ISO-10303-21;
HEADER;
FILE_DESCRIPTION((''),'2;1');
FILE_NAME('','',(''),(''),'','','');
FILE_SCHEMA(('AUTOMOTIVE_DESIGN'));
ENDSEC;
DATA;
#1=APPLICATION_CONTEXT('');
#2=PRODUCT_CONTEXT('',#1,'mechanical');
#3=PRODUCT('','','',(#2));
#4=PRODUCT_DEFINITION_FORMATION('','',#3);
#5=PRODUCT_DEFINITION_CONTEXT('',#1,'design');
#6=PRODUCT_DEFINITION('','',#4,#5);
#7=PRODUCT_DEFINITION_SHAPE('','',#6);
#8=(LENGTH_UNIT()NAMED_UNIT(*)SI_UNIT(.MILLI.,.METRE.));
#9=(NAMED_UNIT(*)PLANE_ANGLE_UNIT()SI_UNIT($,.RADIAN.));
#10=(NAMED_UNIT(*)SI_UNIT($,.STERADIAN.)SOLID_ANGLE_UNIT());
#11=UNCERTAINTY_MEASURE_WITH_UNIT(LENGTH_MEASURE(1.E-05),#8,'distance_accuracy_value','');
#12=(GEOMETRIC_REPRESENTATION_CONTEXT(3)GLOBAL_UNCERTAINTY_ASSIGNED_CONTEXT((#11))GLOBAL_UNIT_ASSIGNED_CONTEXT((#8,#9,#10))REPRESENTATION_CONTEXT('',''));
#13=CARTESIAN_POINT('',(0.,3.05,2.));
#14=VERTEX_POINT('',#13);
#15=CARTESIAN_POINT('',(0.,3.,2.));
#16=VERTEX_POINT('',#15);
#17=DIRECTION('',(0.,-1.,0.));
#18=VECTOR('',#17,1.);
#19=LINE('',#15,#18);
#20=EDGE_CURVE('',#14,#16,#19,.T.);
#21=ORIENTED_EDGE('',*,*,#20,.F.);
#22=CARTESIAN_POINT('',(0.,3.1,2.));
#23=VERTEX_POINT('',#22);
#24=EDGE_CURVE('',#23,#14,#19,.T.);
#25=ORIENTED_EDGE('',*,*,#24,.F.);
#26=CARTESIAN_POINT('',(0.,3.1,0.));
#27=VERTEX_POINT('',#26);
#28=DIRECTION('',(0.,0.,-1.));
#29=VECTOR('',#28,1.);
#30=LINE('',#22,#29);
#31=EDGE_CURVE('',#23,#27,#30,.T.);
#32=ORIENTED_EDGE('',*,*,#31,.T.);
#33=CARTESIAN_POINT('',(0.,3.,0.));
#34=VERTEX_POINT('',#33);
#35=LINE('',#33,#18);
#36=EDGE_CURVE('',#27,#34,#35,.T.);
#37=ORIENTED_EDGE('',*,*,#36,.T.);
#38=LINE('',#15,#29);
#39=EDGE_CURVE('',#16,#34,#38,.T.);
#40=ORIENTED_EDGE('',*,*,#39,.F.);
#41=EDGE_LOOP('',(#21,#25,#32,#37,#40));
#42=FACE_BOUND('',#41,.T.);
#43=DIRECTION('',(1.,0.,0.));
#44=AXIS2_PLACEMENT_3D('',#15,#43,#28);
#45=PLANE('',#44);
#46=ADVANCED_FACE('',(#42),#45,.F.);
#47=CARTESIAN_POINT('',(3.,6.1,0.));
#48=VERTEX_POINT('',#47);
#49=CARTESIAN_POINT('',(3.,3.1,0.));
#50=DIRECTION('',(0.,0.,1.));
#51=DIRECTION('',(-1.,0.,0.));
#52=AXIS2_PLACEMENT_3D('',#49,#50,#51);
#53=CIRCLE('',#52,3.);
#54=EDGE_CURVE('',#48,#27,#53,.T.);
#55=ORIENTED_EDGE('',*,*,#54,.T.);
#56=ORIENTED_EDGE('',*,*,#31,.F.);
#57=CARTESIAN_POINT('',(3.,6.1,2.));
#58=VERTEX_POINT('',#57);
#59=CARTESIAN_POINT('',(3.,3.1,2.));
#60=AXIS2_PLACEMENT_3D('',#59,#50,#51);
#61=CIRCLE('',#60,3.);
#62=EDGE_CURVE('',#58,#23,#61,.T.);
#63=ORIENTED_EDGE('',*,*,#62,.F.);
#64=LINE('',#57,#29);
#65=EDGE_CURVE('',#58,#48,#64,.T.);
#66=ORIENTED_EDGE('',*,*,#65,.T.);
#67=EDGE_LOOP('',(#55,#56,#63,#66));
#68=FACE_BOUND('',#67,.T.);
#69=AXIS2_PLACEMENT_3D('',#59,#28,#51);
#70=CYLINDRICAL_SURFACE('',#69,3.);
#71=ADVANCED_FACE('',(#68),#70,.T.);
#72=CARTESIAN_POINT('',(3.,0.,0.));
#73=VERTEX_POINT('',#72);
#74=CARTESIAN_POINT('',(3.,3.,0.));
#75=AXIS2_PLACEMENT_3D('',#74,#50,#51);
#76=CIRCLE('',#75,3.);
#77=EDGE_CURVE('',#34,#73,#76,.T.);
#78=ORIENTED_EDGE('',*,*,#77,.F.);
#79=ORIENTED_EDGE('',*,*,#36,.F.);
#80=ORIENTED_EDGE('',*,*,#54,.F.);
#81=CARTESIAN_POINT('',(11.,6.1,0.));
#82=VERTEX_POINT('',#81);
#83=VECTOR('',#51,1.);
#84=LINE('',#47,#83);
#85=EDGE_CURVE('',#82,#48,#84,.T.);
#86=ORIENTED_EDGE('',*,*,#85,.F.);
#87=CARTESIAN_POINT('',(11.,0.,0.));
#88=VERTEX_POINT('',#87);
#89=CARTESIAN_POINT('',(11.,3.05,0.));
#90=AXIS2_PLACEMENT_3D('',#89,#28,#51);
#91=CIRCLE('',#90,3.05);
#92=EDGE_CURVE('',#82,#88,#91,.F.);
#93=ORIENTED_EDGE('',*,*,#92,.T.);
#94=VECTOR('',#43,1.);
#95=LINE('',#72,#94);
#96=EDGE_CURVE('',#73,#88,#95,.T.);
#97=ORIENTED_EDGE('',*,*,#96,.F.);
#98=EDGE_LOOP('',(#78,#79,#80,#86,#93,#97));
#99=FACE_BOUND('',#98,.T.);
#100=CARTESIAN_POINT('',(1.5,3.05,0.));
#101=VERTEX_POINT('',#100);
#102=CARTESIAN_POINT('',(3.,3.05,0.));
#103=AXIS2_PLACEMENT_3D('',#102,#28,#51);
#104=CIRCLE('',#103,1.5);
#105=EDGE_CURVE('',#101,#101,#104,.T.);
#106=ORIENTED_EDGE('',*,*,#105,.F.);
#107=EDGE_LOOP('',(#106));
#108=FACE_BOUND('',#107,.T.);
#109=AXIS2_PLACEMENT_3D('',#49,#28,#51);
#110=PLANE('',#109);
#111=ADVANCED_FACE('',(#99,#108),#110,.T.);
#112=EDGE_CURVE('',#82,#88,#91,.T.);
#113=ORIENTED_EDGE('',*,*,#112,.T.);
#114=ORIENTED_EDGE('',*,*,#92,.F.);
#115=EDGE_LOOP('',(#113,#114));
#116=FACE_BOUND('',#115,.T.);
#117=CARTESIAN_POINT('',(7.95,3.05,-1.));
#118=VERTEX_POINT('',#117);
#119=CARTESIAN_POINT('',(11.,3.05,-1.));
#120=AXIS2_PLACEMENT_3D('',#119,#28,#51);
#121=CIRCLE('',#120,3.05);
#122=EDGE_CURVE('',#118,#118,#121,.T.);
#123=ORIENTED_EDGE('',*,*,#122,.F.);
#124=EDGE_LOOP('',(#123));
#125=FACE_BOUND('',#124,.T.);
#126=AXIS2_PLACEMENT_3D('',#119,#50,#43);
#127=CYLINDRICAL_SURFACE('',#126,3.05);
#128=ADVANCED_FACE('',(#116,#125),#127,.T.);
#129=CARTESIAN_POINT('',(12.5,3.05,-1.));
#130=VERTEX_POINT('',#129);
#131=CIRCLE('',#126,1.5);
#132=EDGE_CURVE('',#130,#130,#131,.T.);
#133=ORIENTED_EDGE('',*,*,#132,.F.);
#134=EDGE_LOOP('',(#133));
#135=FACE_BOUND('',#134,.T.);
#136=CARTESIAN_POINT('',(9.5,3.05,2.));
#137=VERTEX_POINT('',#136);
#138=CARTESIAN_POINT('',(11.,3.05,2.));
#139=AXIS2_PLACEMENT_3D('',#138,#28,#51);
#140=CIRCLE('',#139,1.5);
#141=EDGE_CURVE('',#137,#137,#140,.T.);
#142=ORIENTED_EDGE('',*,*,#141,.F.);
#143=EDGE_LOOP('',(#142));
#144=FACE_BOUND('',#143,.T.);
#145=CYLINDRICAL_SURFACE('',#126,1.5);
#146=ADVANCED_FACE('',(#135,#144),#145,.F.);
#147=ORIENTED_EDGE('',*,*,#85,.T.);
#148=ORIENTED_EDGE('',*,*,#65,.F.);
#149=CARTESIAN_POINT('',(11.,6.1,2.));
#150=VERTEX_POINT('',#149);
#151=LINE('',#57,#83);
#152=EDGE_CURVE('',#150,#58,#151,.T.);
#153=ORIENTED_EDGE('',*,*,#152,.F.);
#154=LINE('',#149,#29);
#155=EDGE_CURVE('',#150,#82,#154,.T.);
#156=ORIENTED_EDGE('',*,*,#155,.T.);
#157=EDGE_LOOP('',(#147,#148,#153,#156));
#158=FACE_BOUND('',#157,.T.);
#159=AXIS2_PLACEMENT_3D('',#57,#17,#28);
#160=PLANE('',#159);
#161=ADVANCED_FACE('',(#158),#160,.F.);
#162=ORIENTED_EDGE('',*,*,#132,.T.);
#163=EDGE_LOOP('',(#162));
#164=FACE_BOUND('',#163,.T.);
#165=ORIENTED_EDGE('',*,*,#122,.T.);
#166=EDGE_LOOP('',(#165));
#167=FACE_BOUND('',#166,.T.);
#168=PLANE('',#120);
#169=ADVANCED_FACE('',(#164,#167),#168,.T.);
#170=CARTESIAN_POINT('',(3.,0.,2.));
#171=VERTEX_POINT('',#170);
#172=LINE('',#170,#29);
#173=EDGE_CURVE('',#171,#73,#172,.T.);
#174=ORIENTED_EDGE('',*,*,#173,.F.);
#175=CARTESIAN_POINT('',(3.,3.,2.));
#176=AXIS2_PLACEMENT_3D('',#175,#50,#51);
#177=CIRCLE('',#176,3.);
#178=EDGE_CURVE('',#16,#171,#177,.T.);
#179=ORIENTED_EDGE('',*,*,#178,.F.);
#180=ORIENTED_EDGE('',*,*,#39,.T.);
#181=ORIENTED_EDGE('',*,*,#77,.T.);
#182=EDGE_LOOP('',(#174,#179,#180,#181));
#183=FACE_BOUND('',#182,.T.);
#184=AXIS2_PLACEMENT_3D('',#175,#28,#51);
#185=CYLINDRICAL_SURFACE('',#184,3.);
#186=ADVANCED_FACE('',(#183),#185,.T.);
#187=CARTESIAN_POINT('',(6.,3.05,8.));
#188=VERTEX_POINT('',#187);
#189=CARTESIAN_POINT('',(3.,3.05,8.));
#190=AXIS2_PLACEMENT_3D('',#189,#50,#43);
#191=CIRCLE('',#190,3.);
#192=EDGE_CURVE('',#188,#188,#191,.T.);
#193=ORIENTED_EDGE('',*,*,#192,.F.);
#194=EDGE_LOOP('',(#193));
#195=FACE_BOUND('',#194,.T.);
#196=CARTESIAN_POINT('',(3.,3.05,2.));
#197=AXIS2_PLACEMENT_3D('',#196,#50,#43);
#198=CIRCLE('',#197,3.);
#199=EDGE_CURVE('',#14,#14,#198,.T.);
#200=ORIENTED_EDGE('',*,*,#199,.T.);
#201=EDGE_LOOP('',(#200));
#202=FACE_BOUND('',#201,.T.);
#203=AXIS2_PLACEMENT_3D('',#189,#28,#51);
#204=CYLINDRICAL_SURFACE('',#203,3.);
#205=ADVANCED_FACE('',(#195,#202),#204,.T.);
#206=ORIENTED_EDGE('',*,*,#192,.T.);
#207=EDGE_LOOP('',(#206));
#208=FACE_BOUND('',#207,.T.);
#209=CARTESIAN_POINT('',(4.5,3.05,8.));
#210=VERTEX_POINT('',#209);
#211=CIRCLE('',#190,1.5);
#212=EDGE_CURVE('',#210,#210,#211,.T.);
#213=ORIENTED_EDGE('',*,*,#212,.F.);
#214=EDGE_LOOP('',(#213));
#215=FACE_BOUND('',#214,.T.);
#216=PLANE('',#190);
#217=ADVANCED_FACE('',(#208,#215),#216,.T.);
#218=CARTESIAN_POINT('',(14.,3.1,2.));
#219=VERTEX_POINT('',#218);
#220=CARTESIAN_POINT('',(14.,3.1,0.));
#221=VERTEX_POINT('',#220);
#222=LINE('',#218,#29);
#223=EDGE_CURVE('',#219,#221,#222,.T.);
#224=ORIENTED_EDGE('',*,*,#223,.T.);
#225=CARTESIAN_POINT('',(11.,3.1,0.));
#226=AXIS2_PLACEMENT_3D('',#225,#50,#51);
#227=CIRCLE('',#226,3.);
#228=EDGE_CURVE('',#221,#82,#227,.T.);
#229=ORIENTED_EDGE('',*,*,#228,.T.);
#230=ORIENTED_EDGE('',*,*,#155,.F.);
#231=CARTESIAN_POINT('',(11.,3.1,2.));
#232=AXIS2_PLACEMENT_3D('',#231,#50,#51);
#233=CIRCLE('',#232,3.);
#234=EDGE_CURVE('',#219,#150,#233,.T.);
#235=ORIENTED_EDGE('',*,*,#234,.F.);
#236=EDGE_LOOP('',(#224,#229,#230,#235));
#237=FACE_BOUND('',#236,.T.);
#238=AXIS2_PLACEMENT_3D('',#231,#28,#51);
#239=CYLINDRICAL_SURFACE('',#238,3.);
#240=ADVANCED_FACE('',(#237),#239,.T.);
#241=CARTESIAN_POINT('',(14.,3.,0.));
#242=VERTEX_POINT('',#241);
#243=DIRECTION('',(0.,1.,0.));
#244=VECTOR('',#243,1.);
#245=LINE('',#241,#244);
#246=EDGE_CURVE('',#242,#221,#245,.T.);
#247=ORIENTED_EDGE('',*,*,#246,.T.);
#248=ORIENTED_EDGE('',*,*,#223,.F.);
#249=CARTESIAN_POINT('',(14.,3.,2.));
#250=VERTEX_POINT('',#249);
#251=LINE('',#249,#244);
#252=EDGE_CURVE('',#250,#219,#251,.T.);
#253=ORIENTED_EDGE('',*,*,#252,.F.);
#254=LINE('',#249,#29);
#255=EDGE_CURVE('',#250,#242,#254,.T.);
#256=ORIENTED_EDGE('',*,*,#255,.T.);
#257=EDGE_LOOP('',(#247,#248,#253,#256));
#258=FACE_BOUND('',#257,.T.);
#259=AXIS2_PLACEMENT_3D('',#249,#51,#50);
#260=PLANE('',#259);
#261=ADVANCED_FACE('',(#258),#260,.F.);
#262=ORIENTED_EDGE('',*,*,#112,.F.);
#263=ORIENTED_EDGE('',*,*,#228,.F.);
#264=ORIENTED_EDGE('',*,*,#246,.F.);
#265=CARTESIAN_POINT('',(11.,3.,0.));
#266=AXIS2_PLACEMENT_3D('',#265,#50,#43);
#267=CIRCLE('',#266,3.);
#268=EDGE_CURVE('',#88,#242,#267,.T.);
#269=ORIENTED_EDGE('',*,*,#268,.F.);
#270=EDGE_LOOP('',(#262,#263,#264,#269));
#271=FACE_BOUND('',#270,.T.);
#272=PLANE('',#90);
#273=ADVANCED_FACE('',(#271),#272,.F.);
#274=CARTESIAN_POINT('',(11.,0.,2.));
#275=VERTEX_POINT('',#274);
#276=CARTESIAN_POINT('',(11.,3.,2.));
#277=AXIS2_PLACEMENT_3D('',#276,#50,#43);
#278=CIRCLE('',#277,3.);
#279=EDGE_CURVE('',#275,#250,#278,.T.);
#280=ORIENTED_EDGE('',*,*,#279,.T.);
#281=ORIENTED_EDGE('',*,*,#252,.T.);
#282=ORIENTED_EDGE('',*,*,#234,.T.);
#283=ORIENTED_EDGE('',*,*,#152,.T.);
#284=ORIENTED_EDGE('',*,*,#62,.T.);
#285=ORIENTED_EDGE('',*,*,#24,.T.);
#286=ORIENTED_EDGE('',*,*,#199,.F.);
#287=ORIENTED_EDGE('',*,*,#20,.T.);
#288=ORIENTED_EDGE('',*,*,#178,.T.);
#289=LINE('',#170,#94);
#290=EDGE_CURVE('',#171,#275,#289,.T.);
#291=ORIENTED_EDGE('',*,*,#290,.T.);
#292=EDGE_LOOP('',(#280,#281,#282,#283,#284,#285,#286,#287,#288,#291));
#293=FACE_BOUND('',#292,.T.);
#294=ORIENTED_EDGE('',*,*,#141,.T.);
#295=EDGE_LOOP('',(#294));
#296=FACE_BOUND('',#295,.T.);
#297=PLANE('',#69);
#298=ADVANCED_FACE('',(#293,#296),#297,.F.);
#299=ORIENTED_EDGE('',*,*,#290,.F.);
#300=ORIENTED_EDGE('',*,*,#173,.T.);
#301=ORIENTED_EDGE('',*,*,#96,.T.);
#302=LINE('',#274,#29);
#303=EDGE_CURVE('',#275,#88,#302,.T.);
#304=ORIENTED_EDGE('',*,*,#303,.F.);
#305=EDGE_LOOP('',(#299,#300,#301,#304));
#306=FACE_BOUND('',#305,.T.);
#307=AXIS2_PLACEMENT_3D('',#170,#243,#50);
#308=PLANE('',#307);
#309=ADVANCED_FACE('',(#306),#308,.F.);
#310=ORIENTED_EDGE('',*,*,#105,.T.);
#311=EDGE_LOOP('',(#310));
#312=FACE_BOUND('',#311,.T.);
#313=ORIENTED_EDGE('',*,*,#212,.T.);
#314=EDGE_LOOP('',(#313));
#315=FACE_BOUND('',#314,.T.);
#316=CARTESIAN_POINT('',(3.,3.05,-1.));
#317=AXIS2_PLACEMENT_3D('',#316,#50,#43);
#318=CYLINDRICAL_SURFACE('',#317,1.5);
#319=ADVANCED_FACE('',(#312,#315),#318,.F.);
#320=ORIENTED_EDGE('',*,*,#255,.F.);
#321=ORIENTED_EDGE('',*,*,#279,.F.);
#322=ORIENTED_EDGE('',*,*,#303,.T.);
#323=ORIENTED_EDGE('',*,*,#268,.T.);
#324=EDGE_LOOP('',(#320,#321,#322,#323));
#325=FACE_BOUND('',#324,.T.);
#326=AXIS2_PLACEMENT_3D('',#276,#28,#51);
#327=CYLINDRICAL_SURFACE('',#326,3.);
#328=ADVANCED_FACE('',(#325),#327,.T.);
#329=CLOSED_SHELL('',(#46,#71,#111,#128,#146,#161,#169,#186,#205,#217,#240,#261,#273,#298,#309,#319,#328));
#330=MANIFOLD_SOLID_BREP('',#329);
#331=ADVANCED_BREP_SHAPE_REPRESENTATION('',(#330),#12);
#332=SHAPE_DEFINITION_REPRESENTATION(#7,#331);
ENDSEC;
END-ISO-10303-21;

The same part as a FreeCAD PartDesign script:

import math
import FreeCAD as App
import Part
import Sketcher

doc = App.newDocument("Part")
params = doc.addObject("Spreadsheet::Sheet", "Params")
for row, (alias, value) in enumerate([
    ("sketch1_radius", "3 mm"),
    ("sketch1_width", "8 mm"),
    ("sketch1_height", "0.1 mm"),
    ("pad1_length", "2 mm"),
    ("sketch2_diameter", "6 mm"),
    ("pad2_length", "6 mm"),
    ("sketch3_diameter", "6.1 mm"),
    ("pad3_length", "1 mm"),
    ("sketch4_diameter", "3 mm"),
], start=1):
    params.set(f"A{row}", alias)
    params.set(f"B{row}", "=" + value)
    params.setAlias(f"B{row}", alias)

body = doc.addObject("PartDesign::Body", "Body")

# Sketch on XY plane
sketch1 = body.newObject("Sketcher::SketchObject", "Sketch")
sketch1.AttachmentSupport = (doc.getObject("XY_Plane"), [""])
sketch1.MapMode = "FlatFace"
sketch1.addGeometry([
    Part.LineSegment(App.Vector(3, 0, 0), App.Vector(11, 0, 0)),  # 0
    Part.ArcOfCircle(Part.Circle(App.Vector(11, 3, 0), App.Vector(0, 0, 1), 3), math.radians(-90), math.radians(0)),  # 1
    Part.LineSegment(App.Vector(14, 3, 0), App.Vector(14, 3.1, 0)),  # 2
    Part.ArcOfCircle(Part.Circle(App.Vector(11, 3.1, 0), App.Vector(0, 0, 1), 3), math.radians(0), math.radians(90)),  # 3
    Part.LineSegment(App.Vector(11, 6.1, 0), App.Vector(3, 6.1, 0)),  # 4
    Part.ArcOfCircle(Part.Circle(App.Vector(3, 3.1, 0), App.Vector(0, 0, 1), 3), math.radians(90), math.radians(180)),  # 5
    Part.LineSegment(App.Vector(0, 3.1, 0), App.Vector(0, 3, 0)),  # 6
    Part.ArcOfCircle(Part.Circle(App.Vector(3, 3, 0), App.Vector(0, 0, 1), 3), math.radians(180), math.radians(270)),  # 7
], False)
sketch1.addConstraint([
    Sketcher.Constraint("Tangent", 0, 2, 1, 1),
    Sketcher.Constraint("Tangent", 1, 2, 2, 1),
    Sketcher.Constraint("Tangent", 2, 2, 3, 1),
    Sketcher.Constraint("Tangent", 3, 2, 4, 1),
    Sketcher.Constraint("Tangent", 4, 2, 5, 1),
    Sketcher.Constraint("Tangent", 5, 2, 6, 1),
    Sketcher.Constraint("Tangent", 6, 2, 7, 1),
    Sketcher.Constraint("Tangent", 7, 2, 0, 1),
    Sketcher.Constraint("Horizontal", 0),
    Sketcher.Constraint("Vertical", 2),
    Sketcher.Constraint("Horizontal", 4),
    Sketcher.Constraint("Vertical", 6),
    Sketcher.Constraint("Equal", 1, 3),
    Sketcher.Constraint("Equal", 3, 5),
    Sketcher.Constraint("Equal", 5, 7),
    Sketcher.Constraint("PointOnObject", 0, 2, -1),
    Sketcher.Constraint("PointOnObject", 5, 2, -2),
    Sketcher.Constraint("Radius", 1, 3.0),
    Sketcher.Constraint("DistanceX", 0, 1, 0, 2, 8.0),
    Sketcher.Constraint("DistanceY", 2, 1, 2, 2, 0.1),
])
sketch1.setExpression("Constraints[17]", "Params.sketch1_radius")
sketch1.setExpression("Constraints[18]", "Params.sketch1_width")
sketch1.setExpression("Constraints[19]", "Params.sketch1_height")
pad1 = body.newObject("PartDesign::Pad", "Pad")
pad1.Profile = sketch1
pad1.setExpression("Length", "Params.pad1_length")

# Sketch on XY plane
sketch2 = body.newObject("Sketcher::SketchObject", "Sketch001")
sketch2.AttachmentSupport = (doc.getObject("XY_Plane"), [""])
sketch2.MapMode = "FlatFace"
sketch2.AttachmentOffset = App.Placement(App.Vector(0, 0, 2), App.Rotation())
sketch2.addGeometry(Part.Circle(App.Vector(3, 3, 0), App.Vector(0, 0, 1), 3), False)
sketch2.addConstraint([
    Sketcher.Constraint("Diameter", 0, 6.0),
    Sketcher.Constraint("DistanceX", -1, 1, 0, 3, 3.0),
    Sketcher.Constraint("DistanceY", -1, 1, 0, 3, 3.05),
])
sketch2.setExpression("Constraints[0]", "Params.sketch2_diameter")
pad2 = body.newObject("PartDesign::Pad", "Pad001")
pad2.Profile = sketch2
pad2.setExpression("Length", "Params.pad2_length")

# Sketch on XY plane
sketch3 = body.newObject("Sketcher::SketchObject", "Sketch002")
sketch3.AttachmentSupport = (doc.getObject("XY_Plane"), [""])
sketch3.MapMode = "FlatFace"
sketch3.addGeometry(Part.Circle(App.Vector(11, 3, 0), App.Vector(0, 0, 1), 3), False)
sketch3.addConstraint([
    Sketcher.Constraint("Diameter", 0, 6.1),
    Sketcher.Constraint("DistanceX", -1, 1, 0, 3, 11.0),
    Sketcher.Constraint("DistanceY", -1, 1, 0, 3, 3.05),
])
sketch3.setExpression("Constraints[0]", "Params.sketch3_diameter")
pad3 = body.newObject("PartDesign::Pad", "Pad002")
pad3.Profile = sketch3
pad3.setExpression("Length", "Params.pad3_length")
pad3.Reversed = True

# Sketch on XY plane
sketch4 = body.newObject("Sketcher::SketchObject", "Sketch003")
sketch4.AttachmentSupport = (doc.getObject("XY_Plane"), [""])
sketch4.MapMode = "FlatFace"
sketch4.AttachmentOffset = App.Placement(App.Vector(0, 0, 2), App.Rotation())
sketch4.addGeometry([
    Part.Circle(App.Vector(3, 3, 0), App.Vector(0, 0, 1), 1.5),
    Part.Circle(App.Vector(11, 3, 0), App.Vector(0, 0, 1), 1.5),
], False)
sketch4.addConstraint([
    Sketcher.Constraint("Equal", 0, 1),
    Sketcher.Constraint("Horizontal", 0, 3, 1, 3),
    Sketcher.Constraint("Diameter", 0, 3.0),
    Sketcher.Constraint("DistanceX", -1, 1, 0, 3, 3.0),
    Sketcher.Constraint("DistanceX", -1, 1, 1, 3, 11.0),
    Sketcher.Constraint("DistanceY", -1, 1, 0, 3, 3.05),
])
sketch4.setExpression("Constraints[2]", "Params.sketch4_diameter")
pocket1 = body.newObject("PartDesign::Pocket", "Pocket")
pocket1.Profile = sketch4
pocket1.Type = "ThroughAll"
pocket1.Midplane = True

doc.recompute()
